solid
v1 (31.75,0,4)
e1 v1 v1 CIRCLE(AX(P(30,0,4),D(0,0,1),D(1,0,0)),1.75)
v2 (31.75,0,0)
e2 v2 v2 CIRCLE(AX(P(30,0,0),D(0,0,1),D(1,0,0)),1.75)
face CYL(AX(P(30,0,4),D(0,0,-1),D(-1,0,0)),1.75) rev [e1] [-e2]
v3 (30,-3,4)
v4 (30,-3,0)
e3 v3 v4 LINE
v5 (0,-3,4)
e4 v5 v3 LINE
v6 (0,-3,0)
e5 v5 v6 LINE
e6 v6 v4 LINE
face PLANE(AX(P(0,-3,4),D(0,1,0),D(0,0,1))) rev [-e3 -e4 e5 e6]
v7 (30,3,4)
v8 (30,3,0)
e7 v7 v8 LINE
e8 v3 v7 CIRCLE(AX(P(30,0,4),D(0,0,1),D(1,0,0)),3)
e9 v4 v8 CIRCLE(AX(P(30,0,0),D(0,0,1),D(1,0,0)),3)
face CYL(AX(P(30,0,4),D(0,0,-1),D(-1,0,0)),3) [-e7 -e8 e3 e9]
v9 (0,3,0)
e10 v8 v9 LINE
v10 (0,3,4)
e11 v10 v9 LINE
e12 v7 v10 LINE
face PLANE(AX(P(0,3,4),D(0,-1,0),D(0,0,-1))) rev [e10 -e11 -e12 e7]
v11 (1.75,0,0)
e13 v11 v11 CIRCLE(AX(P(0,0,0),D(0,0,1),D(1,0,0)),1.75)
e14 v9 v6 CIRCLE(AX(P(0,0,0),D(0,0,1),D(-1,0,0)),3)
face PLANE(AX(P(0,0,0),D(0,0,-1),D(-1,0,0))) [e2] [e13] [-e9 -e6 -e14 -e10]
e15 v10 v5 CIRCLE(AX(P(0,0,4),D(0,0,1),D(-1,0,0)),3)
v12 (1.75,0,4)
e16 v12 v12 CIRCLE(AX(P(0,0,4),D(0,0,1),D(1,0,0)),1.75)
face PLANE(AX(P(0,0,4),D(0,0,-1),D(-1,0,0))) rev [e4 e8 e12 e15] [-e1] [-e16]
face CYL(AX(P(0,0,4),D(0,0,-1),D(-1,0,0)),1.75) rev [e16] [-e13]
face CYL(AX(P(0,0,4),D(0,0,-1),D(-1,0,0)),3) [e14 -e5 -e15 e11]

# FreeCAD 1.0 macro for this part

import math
import FreeCAD as App
import Part
import Sketcher
from FreeCAD import Vector
Q = App.Units.Quantity

doc = App.newDocument("Part")
body = doc.addObject("PartDesign::Body", "Body")

# Sketch on XY plane
sketch1 = body.newObject("Sketcher::SketchObject", "Sketch")
sketch1.AttachmentSupport = (doc.getObject("XY_Plane"), [""])
sketch1.MapMode = "FlatFace"
sketch1.addGeometry(Part.LineSegment(Vector(0, -3, 0), Vector(30, -3, 0)), False)
sketch1.addGeometry(Part.ArcOfCircle(Part.Circle(Vector(30, 0, 0), Vector(0, 0, 1), 3), math.radians(-90), math.radians(90)), False)
sketch1.addGeometry(Part.LineSegment(Vector(30, 3, 0), Vector(0, 3, 0)), False)
sketch1.addGeometry(Part.ArcOfCircle(Part.Circle(Vector(0, 0, 0), Vector(0, 0, 1), 3), math.radians(90), math.radians(270)), False)
sketch1.addGeometry(Part.Circle(Vector(0, 0, 0), Vector(0, 0, 1), 1.8), False)
sketch1.addGeometry(Part.Circle(Vector(30, 0, 0), Vector(0, 0, 1), 1.8), False)
sketch1.addConstraint(Sketcher.Constraint("Tangent", 0, 2, 1, 1))
sketch1.addConstraint(Sketcher.Constraint("Tangent", 1, 2, 2, 1))
sketch1.addConstraint(Sketcher.Constraint("Tangent", 2, 2, 3, 1))
sketch1.addConstraint(Sketcher.Constraint("Tangent", 3, 2, 0, 1))
sketch1.addConstraint(Sketcher.Constraint("Horizontal", 0))
sketch1.addConstraint(Sketcher.Constraint("Horizontal", 2))
sketch1.addConstraint(Sketcher.Constraint("Coincident", 3, 3, -1, 1))
sketch1.addConstraint(Sketcher.Constraint("Coincident", 4, 3, -1, 1))
sketch1.addConstraint(Sketcher.Constraint("Coincident", 5, 3, 1, 3))
sketch1.addConstraint(Sketcher.Constraint("Equal", 4, 5))
sketch1.addConstraint(Sketcher.Constraint("Radius", 1, Q("3 mm")))
sketch1.addConstraint(Sketcher.Constraint("Diameter", 4, Q("3.5 mm")))
sketch1.addConstraint(Sketcher.Constraint("DistanceX", 0, 1, 0, 2, Q("30 mm")))
pad1 = body.newObject("PartDesign::Pad", "Pad")
pad1.Profile = sketch1
pad1.Length = 4

doc.recompute()
